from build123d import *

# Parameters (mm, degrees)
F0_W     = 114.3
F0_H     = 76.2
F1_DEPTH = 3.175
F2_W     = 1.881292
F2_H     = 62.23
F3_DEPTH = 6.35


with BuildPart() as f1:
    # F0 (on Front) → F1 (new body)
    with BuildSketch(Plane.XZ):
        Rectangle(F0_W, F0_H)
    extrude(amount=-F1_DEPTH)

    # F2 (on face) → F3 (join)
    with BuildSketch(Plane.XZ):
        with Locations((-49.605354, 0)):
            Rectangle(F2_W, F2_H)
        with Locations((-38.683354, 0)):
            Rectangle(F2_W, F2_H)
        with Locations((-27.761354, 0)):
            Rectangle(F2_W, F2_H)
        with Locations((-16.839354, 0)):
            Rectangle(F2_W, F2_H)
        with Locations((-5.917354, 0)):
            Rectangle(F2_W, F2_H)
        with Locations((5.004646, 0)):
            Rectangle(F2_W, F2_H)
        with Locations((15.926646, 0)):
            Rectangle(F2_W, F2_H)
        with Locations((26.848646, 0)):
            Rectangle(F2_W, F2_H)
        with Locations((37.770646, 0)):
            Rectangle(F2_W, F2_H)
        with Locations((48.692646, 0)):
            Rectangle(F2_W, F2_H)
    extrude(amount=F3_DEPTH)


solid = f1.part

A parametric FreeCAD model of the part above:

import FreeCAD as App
import Part
import Sketcher

V = App.Vector
Q = App.Units.Quantity


def add_polygon(sketch, points):
    """Adds a closed chain of lines whose ends are joined by coincident constraints."""
    first, n = sketch.GeometryCount, len(points)
    for a, b in zip(points, points[1:] + points[:1]):
        sketch.addGeometry(Part.LineSegment(App.Vector(*a, 0), App.Vector(*b, 0)), False)
    for i in range(n):
        sketch.addConstraint(Sketcher.Constraint("Coincident", first + i, 2, first + (i + 1) % n, 1))

doc = App.newDocument("Part")
body = doc.addObject("PartDesign::Body", "Body")

# Sketch on XZ plane
sketch1 = body.newObject("Sketcher::SketchObject", "Sketch")
sketch1.AttachmentSupport = (doc.getObject("XZ_Plane"), [""])
sketch1.MapMode = "FlatFace"
add_polygon(sketch1, [(-57, 38), (-57, -38), (57, -38), (57, 38)])  # lines 0-3
sketch1.addConstraint([
    Sketcher.Constraint("Vertical", 0),
    Sketcher.Constraint("Horizontal", 1),
    Sketcher.Constraint("Vertical", 2),
    Sketcher.Constraint("Horizontal", 3),
    Sketcher.Constraint("Symmetric", 0, 2, 2, 2, -1, 1),
    Sketcher.Constraint("DistanceY", 0, 2, 0, 1, Q("3 in")),
    Sketcher.Constraint("DistanceX", 1, 1, 1, 2, Q("4.5 in")),
])
pad1 = body.newObject("PartDesign::Pad", "Pad")
pad1.Profile = sketch1
pad1.Length = Q("0.125 in")
pad1.Reversed = True

# Sketch on XZ plane
sketch2 = body.newObject("Sketcher::SketchObject", "Sketch001")
sketch2.AttachmentSupport = (doc.getObject("XZ_Plane"), [""])
sketch2.MapMode = "FlatFace"
add_polygon(sketch2, [(-50.5, 31.1), (-50.5, -31.1), (-48.7, -31.1), (-48.7, 31.1)])  # lines 0-3
add_polygon(sketch2, [(-39.6, 31.1), (-39.6, -31.1), (-37.7, -31.1), (-37.7, 31.1)])  # lines 4-7
add_polygon(sketch2, [(-28.7, 31.1), (-28.7, -31.1), (-26.8, -31.1), (-26.8, 31.1)])  # lines 8-11
add_polygon(sketch2, [(-17.8, 31.1), (-17.8, -31.1), (-15.9, -31.1), (-15.9, 31.1)])  # lines 12-15
add_polygon(sketch2, [(-6.9, 31.1), (-6.9, -31.1), (-5, -31.1), (-5, 31.1)])  # lines 16-19
add_polygon(sketch2, [(4.1, 31.1), (4.1, -31.1), (5.9, -31.1), (5.9, 31.1)])  # lines 20-23
add_polygon(sketch2, [(15, 31.1), (15, -31.1), (16.9, -31.1), (16.9, 31.1)])  # lines 24-27
add_polygon(sketch2, [(25.9, 31.1), (25.9, -31.1), (27.8, -31.1), (27.8, 31.1)])  # lines 28-31
add_polygon(sketch2, [(36.8, 31.1), (36.8, -31.1), (38.7, -31.1), (38.7, 31.1)])  # lines 32-35
add_polygon(sketch2, [(47.8, 31.1), (47.8, -31.1), (49.6, -31.1), (49.6, 31.1)])  # lines 36-39
sketch2.addConstraint([
    Sketcher.Constraint("Vertical", 0),
    Sketcher.Constraint("Horizontal", 1),
    Sketcher.Constraint("Vertical", 2),
    Sketcher.Constraint("Horizontal", 3),
    Sketcher.Constraint("Vertical", 4),
    Sketcher.Constraint("Horizontal", 5),
    Sketcher.Constraint("Vertical", 6),
    Sketcher.Constraint("Horizontal", 7),
    Sketcher.Constraint("Vertical", 8),
    Sketcher.Constraint("Horizontal", 9),
    Sketcher.Constraint("Vertical", 10),
    Sketcher.Constraint("Horizontal", 11),
    Sketcher.Constraint("Vertical", 12),
    Sketcher.Constraint("Horizontal", 13),
    Sketcher.Constraint("Vertical", 14),
    Sketcher.Constraint("Horizontal", 15),
    Sketcher.Constraint("Vertical", 16),
    Sketcher.Constraint("Horizontal", 17),
    Sketcher.Constraint("Vertical", 18),
    Sketcher.Constraint("Horizontal", 19),
    Sketcher.Constraint("Vertical", 20),
    Sketcher.Constraint("Horizontal", 21),
    Sketcher.Constraint("Vertical", 22),
    Sketcher.Constraint("Horizontal", 23),
    Sketcher.Constraint("Vertical", 24),
    Sketcher.Constraint("Horizontal", 25),
    Sketcher.Constraint("Vertical", 26),
    Sketcher.Constraint("Horizontal", 27),
    Sketcher.Constraint("Vertical", 28),
    Sketcher.Constraint("Horizontal", 29),
    Sketcher.Constraint("Vertical", 30),
    Sketcher.Constraint("Horizontal", 31),
    Sketcher.Constraint("Vertical", 32),
    Sketcher.Constraint("Horizontal", 33),
    Sketcher.Constraint("Vertical", 34),
    Sketcher.Constraint("Horizontal", 35),
    Sketcher.Constraint("Vertical", 36),
    Sketcher.Constraint("Horizontal", 37),
    Sketcher.Constraint("Vertical", 38),
    Sketcher.Constraint("Horizontal", 39),
    Sketcher.Constraint("Horizontal", 1, 2, 4, 2),
    Sketcher.Constraint("Horizontal", 3, 2, 6, 2),
    Sketcher.Constraint("Horizontal", 5, 2, 8, 2),
    Sketcher.Constraint("Horizontal", 7, 2, 10, 2),
    Sketcher.Constraint("Horizontal", 9, 2, 12, 2),
    Sketcher.Constraint("Horizontal", 11, 2, 14, 2),
    Sketcher.Constraint("Horizontal", 13, 2, 16, 2),
    Sketcher.Constraint("Horizontal", 15, 2, 18, 2),
    Sketcher.Constraint("Horizontal", 17, 2, 20, 2),
    Sketcher.Constraint("Horizontal", 19, 2, 22, 2),
    Sketcher.Constraint("Horizontal", 21, 2, 24, 2),
    Sketcher.Constraint("Horizontal", 23, 2, 26, 2),
    Sketcher.Constraint("Horizontal", 25, 2, 28, 2),
    Sketcher.Constraint("Horizontal", 27, 2, 30, 2),
    Sketcher.Constraint("Horizontal", 29, 2, 32, 2),
    Sketcher.Constraint("Horizontal", 31, 2, 34, 2),
    Sketcher.Constraint("Horizontal", 33, 2, 36, 2),
    Sketcher.Constraint("Horizontal", 35, 2, 38, 2),
    Sketcher.Constraint("Equal", 3, 5),
    Sketcher.Constraint("Equal", 7, 9),
    Sketcher.Constraint("Equal", 11, 13),
    Sketcher.Constraint("Equal", 15, 17),
    Sketcher.Constraint("Equal", 19, 21),
    Sketcher.Constraint("Equal", 23, 25),
    Sketcher.Constraint("Equal", 27, 29),
    Sketcher.Constraint("Equal", 31, 33),
    Sketcher.Constraint("Equal", 35, 37),
    Sketcher.Constraint("DistanceY", 0, 2, 0, 1, Q("2.45 in")),
    Sketcher.Constraint("DistanceX", 12, 2, -1, 1, Q("0.7 in")),
    Sketcher.Constraint("DistanceX", 0, 2, -1, 1, Q("1.99 in")),
    Sketcher.Constraint("DistanceX", 4, 2, -1, 1, Q("1.56 in")),
    Sketcher.Constraint("DistanceX", 8, 2, -1, 1, Q("1.13 in")),
    Sketcher.Constraint("DistanceX", 16, 2, -1, 1, Q("0.27 in")),
    Sketcher.Constraint("DistanceX", -1, 1, 20, 2, Q("0.16 in")),
    Sketcher.Constraint("DistanceX", -1, 1, 24, 2, Q("0.59 in")),
    Sketcher.Constraint("DistanceX", -1, 1, 28, 2, Q("1.02 in")),
    Sketcher.Constraint("DistanceX", -1, 1, 32, 2, Q("1.45 in")),
    Sketcher.Constraint("DistanceX", -1, 1, 36, 2, Q("1.88 in")),
    Sketcher.Constraint("DistanceY", 0, 2, -1, 1, Q("1.225 in")),
    Sketcher.Constraint("DistanceX", 17, 1, 17, 2, 1.881292),
])
pad2 = body.newObject("PartDesign::Pad", "Pad001")
pad2.Profile = sketch2
pad2.Length = Q("0.25 in")

doc.recompute()
